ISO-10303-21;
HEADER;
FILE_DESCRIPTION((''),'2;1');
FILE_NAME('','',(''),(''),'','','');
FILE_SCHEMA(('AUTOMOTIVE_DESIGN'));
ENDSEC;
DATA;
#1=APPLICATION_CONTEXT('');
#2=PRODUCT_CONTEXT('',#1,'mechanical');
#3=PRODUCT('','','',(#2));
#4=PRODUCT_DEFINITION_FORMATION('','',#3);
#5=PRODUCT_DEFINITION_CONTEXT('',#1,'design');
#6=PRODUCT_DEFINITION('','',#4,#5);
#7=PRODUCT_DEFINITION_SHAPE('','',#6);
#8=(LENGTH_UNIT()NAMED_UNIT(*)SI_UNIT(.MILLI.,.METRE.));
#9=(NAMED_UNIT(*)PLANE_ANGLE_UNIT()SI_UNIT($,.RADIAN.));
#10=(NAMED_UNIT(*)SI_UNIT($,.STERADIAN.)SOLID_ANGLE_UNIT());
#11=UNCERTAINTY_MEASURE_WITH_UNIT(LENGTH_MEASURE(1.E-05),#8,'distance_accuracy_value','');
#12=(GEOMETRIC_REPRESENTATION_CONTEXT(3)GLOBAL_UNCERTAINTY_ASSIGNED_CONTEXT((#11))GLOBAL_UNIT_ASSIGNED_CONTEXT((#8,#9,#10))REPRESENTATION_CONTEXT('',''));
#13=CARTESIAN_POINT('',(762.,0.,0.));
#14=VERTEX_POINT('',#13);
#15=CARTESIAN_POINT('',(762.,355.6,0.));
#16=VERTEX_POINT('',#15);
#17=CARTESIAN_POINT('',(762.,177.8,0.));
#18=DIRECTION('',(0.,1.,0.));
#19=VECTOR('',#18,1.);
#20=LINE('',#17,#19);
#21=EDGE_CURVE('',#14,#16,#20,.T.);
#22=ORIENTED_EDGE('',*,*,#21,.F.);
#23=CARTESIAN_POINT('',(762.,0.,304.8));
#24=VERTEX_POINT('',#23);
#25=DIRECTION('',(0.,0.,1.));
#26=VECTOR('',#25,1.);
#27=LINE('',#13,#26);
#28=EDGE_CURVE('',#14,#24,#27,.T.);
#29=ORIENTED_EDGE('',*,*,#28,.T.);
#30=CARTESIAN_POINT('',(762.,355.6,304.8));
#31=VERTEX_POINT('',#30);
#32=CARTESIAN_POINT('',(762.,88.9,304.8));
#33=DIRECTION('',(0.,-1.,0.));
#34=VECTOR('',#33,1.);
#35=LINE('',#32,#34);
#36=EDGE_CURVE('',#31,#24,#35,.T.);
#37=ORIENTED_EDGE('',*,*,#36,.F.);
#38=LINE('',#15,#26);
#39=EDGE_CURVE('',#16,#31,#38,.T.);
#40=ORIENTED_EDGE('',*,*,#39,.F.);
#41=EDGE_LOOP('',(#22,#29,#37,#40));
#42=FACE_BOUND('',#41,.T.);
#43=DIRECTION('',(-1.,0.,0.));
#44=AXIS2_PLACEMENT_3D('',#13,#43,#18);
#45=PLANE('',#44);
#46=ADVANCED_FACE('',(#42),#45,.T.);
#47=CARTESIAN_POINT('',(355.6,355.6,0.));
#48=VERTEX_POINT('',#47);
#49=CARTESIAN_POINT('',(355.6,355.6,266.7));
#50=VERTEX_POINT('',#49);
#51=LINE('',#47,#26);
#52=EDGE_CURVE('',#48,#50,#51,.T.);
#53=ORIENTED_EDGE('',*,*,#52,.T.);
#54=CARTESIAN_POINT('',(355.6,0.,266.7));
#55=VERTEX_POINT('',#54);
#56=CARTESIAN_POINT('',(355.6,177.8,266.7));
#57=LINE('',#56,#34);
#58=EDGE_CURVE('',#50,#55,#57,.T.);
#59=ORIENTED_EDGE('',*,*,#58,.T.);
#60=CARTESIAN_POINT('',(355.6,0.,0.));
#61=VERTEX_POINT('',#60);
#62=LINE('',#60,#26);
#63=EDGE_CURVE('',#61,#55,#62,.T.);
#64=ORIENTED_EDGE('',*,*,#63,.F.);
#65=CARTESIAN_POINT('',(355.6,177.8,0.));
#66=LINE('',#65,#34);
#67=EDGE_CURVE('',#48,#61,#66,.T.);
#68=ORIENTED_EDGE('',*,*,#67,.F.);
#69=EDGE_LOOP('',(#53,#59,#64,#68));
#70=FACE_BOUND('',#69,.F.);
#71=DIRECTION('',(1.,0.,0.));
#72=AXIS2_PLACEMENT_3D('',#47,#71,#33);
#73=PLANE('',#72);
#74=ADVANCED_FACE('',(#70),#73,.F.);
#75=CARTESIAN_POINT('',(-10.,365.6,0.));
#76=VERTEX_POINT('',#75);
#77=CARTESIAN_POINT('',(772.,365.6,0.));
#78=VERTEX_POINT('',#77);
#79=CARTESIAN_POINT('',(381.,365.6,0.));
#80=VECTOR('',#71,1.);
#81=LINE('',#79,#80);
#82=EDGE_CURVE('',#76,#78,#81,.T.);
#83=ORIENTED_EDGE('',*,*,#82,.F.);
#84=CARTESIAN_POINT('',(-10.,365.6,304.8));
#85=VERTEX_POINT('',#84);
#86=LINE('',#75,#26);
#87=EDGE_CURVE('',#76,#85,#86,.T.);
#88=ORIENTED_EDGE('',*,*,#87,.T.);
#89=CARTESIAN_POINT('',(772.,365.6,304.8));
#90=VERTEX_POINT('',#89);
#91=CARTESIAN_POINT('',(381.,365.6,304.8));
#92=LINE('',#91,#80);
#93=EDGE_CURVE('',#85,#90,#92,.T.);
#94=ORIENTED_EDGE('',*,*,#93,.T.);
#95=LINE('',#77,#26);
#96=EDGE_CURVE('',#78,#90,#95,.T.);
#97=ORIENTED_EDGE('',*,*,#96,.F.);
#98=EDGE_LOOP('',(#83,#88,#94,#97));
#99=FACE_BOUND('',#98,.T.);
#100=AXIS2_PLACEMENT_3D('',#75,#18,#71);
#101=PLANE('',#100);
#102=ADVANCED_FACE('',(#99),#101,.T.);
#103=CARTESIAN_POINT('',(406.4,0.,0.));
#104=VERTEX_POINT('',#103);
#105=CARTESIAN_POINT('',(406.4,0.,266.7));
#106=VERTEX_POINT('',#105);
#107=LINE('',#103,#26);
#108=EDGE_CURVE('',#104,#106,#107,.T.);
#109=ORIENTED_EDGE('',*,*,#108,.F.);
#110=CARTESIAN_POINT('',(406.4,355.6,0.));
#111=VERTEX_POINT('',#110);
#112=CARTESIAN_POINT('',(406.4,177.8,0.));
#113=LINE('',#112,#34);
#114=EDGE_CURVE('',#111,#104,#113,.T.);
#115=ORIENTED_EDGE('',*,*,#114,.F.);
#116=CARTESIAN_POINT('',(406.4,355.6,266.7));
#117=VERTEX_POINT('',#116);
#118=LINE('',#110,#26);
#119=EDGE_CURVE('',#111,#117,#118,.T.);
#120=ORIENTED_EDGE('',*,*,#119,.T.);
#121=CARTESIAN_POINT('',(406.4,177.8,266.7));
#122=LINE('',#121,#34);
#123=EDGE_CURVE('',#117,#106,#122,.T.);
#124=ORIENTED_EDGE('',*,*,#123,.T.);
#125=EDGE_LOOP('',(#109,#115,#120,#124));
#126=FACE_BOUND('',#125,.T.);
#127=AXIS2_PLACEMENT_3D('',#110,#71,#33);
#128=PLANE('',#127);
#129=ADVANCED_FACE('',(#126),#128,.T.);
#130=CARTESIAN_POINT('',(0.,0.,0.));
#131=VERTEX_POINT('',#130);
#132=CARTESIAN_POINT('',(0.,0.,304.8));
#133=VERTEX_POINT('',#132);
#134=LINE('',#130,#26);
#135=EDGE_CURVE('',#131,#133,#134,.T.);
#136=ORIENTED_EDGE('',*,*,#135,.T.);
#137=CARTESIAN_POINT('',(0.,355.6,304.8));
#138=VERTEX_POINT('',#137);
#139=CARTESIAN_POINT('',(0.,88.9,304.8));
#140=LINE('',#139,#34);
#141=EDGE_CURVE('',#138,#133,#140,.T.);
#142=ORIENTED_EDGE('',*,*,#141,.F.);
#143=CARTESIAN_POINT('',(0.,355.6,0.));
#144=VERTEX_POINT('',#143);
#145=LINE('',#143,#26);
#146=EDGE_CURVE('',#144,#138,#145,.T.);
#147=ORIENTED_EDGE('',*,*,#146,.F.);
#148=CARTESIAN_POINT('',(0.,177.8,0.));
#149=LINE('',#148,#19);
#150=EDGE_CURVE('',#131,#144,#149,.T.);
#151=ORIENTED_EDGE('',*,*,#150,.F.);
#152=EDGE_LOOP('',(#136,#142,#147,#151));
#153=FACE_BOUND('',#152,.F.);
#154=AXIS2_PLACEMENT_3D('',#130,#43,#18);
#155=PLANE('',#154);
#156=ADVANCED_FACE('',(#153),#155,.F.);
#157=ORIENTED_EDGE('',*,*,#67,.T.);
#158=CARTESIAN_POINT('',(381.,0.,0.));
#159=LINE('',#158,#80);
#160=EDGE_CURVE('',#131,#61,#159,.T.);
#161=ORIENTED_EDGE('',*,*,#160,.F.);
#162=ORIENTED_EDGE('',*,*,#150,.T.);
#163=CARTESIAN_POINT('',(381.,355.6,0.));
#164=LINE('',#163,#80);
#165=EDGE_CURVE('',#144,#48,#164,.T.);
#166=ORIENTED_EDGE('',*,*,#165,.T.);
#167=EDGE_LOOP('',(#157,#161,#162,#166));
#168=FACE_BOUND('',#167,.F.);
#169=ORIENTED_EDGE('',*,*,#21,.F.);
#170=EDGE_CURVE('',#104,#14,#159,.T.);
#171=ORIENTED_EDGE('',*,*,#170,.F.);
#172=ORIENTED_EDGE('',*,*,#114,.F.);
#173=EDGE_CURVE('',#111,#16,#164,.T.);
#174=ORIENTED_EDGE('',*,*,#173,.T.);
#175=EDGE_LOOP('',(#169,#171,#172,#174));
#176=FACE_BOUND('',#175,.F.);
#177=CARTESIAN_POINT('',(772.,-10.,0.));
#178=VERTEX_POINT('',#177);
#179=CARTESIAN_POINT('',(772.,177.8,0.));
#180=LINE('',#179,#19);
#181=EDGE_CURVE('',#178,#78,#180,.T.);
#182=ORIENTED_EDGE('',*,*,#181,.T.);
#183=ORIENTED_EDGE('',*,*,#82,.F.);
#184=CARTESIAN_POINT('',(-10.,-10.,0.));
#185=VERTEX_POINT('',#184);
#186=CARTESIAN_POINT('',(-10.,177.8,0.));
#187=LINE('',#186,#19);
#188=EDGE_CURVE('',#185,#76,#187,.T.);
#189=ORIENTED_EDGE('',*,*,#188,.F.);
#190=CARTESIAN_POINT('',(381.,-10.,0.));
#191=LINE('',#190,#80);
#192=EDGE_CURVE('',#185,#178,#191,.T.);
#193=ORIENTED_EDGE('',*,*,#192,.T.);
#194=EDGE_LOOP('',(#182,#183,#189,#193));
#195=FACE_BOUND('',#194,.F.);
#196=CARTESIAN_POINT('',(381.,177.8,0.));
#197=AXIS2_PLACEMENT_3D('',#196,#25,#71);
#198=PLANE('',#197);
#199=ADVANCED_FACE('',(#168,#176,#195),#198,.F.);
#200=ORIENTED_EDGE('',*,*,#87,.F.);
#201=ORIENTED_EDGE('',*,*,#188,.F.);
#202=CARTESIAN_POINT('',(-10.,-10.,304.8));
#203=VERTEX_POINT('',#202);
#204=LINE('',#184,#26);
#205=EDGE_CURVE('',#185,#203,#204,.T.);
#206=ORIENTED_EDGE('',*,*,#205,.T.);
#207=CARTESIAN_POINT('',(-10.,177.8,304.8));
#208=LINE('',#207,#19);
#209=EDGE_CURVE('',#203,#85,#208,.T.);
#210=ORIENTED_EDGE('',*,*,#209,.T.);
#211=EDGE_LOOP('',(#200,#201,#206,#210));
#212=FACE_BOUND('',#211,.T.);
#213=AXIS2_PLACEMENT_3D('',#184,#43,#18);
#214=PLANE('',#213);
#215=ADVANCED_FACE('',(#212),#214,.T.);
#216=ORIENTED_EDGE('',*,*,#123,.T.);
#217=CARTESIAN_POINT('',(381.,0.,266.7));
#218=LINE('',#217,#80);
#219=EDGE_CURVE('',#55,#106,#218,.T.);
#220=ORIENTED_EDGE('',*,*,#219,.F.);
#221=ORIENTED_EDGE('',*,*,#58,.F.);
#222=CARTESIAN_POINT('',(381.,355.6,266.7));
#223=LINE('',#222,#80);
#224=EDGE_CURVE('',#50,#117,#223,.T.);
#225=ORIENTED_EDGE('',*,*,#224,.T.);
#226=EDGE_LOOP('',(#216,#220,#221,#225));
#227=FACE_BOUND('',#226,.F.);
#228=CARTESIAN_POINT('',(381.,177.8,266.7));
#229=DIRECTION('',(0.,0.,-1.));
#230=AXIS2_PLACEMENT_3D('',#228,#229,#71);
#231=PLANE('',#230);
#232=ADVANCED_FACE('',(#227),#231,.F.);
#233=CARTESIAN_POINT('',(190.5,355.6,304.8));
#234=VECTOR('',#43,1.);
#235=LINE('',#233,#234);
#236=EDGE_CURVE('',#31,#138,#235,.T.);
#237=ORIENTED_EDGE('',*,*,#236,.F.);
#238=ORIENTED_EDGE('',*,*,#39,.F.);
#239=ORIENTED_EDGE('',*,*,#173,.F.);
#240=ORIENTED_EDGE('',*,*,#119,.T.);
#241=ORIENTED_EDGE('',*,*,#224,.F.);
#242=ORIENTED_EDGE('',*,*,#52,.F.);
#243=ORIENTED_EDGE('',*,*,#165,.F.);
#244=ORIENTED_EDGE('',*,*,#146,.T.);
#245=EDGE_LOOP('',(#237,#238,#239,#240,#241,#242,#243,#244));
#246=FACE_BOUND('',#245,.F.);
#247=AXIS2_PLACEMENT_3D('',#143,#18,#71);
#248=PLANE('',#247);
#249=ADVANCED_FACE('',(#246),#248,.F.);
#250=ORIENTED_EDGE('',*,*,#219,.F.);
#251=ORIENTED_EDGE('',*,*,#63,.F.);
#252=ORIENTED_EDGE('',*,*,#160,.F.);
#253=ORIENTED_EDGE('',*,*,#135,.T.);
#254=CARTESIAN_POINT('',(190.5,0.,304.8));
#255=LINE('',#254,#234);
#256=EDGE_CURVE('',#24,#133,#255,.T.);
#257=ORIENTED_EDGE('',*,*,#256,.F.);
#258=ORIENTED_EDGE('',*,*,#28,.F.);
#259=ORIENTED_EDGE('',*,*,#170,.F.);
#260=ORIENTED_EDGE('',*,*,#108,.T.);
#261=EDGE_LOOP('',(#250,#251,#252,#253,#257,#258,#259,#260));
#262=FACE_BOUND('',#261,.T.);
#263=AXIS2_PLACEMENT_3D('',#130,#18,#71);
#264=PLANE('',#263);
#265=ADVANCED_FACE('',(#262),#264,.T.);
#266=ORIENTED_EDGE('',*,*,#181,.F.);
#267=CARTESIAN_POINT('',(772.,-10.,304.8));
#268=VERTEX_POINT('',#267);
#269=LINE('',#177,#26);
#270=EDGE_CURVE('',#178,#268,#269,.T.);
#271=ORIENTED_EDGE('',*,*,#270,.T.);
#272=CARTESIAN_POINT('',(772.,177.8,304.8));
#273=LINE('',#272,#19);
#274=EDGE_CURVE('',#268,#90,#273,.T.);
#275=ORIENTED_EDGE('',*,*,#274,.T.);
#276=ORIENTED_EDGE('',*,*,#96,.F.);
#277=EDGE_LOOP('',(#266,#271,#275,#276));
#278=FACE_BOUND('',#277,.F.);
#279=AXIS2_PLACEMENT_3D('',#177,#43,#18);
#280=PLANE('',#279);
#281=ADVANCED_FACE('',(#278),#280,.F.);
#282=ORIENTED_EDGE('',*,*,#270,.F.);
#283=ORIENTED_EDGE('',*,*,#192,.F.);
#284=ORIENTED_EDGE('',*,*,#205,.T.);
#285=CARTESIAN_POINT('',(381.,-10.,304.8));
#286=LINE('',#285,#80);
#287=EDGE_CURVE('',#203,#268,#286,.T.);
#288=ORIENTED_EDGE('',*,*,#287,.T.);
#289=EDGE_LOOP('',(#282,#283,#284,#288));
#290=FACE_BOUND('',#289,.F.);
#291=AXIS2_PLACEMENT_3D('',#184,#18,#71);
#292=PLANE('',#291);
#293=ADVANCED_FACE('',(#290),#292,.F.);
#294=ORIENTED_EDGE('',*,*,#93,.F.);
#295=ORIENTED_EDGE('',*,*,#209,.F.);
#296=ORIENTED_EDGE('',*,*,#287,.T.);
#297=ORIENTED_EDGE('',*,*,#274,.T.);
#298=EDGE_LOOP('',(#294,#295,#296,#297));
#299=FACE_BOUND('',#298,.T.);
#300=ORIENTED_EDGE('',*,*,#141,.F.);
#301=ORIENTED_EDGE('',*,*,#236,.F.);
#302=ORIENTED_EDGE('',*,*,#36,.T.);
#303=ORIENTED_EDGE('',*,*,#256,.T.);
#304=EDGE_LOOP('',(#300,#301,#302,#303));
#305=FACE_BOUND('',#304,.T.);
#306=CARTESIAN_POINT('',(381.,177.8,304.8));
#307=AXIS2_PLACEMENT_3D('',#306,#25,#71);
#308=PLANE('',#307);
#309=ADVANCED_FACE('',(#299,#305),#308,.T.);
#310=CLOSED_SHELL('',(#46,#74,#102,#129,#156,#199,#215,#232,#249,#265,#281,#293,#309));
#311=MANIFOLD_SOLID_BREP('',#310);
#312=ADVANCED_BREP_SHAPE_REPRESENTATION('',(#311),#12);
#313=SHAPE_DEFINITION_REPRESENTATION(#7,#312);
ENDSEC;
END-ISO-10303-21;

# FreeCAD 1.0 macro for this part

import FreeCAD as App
import Part
import Sketcher

V = App.Vector
Q = App.Units.Quantity


def add_polygon(sketch, points):
    """Adds a closed chain of lines whose ends are joined by coincident constraints."""
    first, n = sketch.GeometryCount, len(points)
    for a, b in zip(points, points[1:] + points[:1]):
        sketch.addGeometry(Part.LineSegment(App.Vector(*a, 0), App.Vector(*b, 0)), False)
    for i in range(n):
        sketch.addConstraint(Sketcher.Constraint("Coincident", first + i, 2, first + (i + 1) % n, 1))

doc = App.newDocument("Part")
body = doc.addObject("PartDesign::Body", "Body")

# Sketch on XY plane
sketch1 = body.newObject("Sketcher::SketchObject", "Sketch")
sketch1.AttachmentSupport = (doc.getObject("XY_Plane"), [""])
sketch1.MapMode = "FlatFace"
add_polygon(sketch1, [(-10, 366), (-10, -10), (772, -10), (772, 366)])  # lines 0-3
sketch1.addConstraint(Sketcher.Constraint("Vertical", 0))
sketch1.addConstraint(Sketcher.Constraint("Horizontal", 1))
sketch1.addConstraint(Sketcher.Constraint("Vertical", 2))
sketch1.addConstraint(Sketcher.Constraint("Horizontal", 3))
sketch1.addConstraint(Sketcher.Constraint("DistanceX", 1, 1, 1, 2, 782.0))
sketch1.addConstraint(Sketcher.Constraint("DistanceY", 0, 2, 0, 1, 375.6))
sketch1.addConstraint(Sketcher.Constraint("DistanceX", 0, 2, -1, 1, 10.0))
sketch1.addConstraint(Sketcher.Constraint("DistanceY", 0, 2, -1, 1, 10.0))
pad1 = body.newObject("PartDesign::Pad", "Pad")
pad1.Profile = sketch1
pad1.Length = Q("12 in")

# Sketch on XY plane
sketch2 = body.newObject("Sketcher::SketchObject", "Sketch001")
sketch2.AttachmentSupport = (doc.getObject("XY_Plane"), [""])
sketch2.MapMode = "FlatFace"
add_polygon(sketch2, [(0, 356), (0, 0), (762, 0), (762, 356)])  # lines 0-3
sketch2.addConstraint(Sketcher.Constraint("Vertical", 0))
sketch2.addConstraint(Sketcher.Constraint("Horizontal", 1))
sketch2.addConstraint(Sketcher.Constraint("Vertical", 2))
sketch2.addConstraint(Sketcher.Constraint("Horizontal", 3))
sketch2.addConstraint(Sketcher.Constraint("Coincident", 0, 2, -1, 1))
sketch2.addConstraint(Sketcher.Constraint("DistanceX", 1, 1, 1, 2, Q("30 in")))
sketch2.addConstraint(Sketcher.Constraint("DistanceY", 0, 2, 0, 1, Q("14 in")))
pocket1 = body.newObject("PartDesign::Pocket", "Pocket")
pocket1.Profile = sketch2
pocket1.Type = "ThroughAll"
pocket1.Reversed = True

# Sketch on XY plane
sketch3 = body.newObject("Sketcher::SketchObject", "Sketch002")
sketch3.AttachmentSupport = (doc.getObject("XY_Plane"), [""])
sketch3.MapMode = "FlatFace"
add_polygon(sketch3, [(356, 0), (356, 356), (406, 356), (406, 0)])  # lines 0-3
sketch3.addConstraint(Sketcher.Constraint("Vertical", 0))
sketch3.addConstraint(Sketcher.Constraint("Horizontal", 1))
sketch3.addConstraint(Sketcher.Constraint("Vertical", 2))
sketch3.addConstraint(Sketcher.Constraint("Horizontal", 3))
sketch3.addConstraint(Sketcher.Constraint("PointOnObject", 2, 2, -1))
sketch3.addConstraint(Sketcher.Constraint("DistanceX", 1, 1, 1, 2, Q("2 in")))
sketch3.addConstraint(Sketcher.Constraint("DistanceY", 0, 1, 0, 2, Q("14 in")))
sketch3.addConstraint(Sketcher.Constraint("DistanceX", -1, 1, 0, 2, Q("14 in")))
pad2 = body.newObject("PartDesign::Pad", "Pad001")
pad2.Profile = sketch3
pad2.Length = Q("10.5 in")

doc.recompute()
